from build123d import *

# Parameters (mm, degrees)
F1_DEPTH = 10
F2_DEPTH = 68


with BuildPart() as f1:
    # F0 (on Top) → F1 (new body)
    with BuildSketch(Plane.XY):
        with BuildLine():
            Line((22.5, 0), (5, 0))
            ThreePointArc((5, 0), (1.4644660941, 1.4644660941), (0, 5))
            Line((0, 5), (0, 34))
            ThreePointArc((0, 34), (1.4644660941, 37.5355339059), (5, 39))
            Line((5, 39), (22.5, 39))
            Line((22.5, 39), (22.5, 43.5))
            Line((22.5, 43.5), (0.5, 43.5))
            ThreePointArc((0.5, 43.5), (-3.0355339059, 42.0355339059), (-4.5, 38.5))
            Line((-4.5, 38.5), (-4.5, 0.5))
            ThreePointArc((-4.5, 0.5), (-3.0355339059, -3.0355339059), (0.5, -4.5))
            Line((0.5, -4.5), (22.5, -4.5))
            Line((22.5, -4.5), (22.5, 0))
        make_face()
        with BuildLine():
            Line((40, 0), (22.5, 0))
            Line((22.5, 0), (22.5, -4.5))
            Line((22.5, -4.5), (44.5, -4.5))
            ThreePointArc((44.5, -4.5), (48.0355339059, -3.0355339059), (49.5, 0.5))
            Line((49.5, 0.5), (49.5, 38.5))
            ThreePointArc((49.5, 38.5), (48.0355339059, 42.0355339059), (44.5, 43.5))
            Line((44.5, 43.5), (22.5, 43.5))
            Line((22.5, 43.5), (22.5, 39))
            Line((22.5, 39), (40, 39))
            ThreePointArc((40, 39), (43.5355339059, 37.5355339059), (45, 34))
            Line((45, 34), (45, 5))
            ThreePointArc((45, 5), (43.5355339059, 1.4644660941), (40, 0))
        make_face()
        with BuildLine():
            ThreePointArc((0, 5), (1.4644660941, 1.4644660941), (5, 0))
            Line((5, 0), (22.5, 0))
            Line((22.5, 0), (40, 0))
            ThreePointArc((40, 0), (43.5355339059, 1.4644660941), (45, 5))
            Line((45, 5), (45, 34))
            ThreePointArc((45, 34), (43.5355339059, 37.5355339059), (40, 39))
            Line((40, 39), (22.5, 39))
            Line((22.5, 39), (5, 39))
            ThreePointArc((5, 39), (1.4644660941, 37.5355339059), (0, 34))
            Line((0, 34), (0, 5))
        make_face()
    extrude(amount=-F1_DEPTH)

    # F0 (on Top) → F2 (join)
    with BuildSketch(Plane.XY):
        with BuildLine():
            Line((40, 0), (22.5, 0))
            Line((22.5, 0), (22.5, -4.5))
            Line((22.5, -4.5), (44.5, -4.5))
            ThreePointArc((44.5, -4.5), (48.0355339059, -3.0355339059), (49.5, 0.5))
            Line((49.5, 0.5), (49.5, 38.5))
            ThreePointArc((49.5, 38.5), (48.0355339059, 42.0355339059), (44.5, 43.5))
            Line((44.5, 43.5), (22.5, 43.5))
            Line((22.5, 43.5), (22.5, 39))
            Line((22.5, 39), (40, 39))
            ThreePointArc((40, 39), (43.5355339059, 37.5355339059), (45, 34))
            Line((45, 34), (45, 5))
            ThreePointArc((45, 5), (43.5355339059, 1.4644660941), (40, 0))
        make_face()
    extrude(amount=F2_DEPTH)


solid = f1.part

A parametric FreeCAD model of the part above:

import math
import FreeCAD as App
import Part
import Sketcher

V = App.Vector

doc = App.newDocument("Part")
body = doc.addObject("PartDesign::Body", "Body")

# Sketch on XY plane
sketch1 = body.newObject("Sketcher::SketchObject", "Sketch")
sketch1.AttachmentSupport = (doc.getObject("XY_Plane"), [""])
sketch1.MapMode = "FlatFace"
sketch1.addGeometry(Part.ArcOfCircle(Part.Circle(V(0.5, 38.5, 0), V(0, 0, 1), 5), math.radians(90), math.radians(180)), False)
sketch1.addGeometry(Part.LineSegment(V(-4.5, 38.5, 0), V(-4.5, 0.5, 0)), False)
sketch1.addGeometry(Part.ArcOfCircle(Part.Circle(V(0.5, 0.5, 0), V(0, 0, 1), 5), math.radians(180), math.radians(270)), False)
sketch1.addGeometry(Part.LineSegment(V(0.5, -4.5, 0), V(44.5, -4.5, 0)), False)
sketch1.addGeometry(Part.ArcOfCircle(Part.Circle(V(44.5, 0.5, 0), V(0, 0, 1), 5), math.radians(-90), math.radians(0)), False)
sketch1.addGeometry(Part.LineSegment(V(49.5, 0.5, 0), V(49.5, 38.5, 0)), False)
sketch1.addGeometry(Part.ArcOfCircle(Part.Circle(V(44.5, 38.5, 0), V(0, 0, 1), 5), math.radians(0), math.radians(90)), False)
sketch1.addGeometry(Part.LineSegment(V(44.5, 43.5, 0), V(0.5, 43.5, 0)), False)
sketch1.addConstraint(Sketcher.Constraint("Tangent", 0, 2, 1, 1))
sketch1.addConstraint(Sketcher.Constraint("Tangent", 1, 2, 2, 1))
sketch1.addConstraint(Sketcher.Constraint("Tangent", 2, 2, 3, 1))
sketch1.addConstraint(Sketcher.Constraint("Tangent", 3, 2, 4, 1))
sketch1.addConstraint(Sketcher.Constraint("Tangent", 4, 2, 5, 1))
sketch1.addConstraint(Sketcher.Constraint("Tangent", 5, 2, 6, 1))
sketch1.addConstraint(Sketcher.Constraint("Tangent", 6, 2, 7, 1))
sketch1.addConstraint(Sketcher.Constraint("Tangent", 7, 2, 0, 1))
sketch1.addConstraint(Sketcher.Constraint("Vertical", 1))
sketch1.addConstraint(Sketcher.Constraint("Horizontal", 3))
sketch1.addConstraint(Sketcher.Constraint("Vertical", 5))
sketch1.addConstraint(Sketcher.Constraint("Horizontal", 7))
sketch1.addConstraint(Sketcher.Constraint("Equal", 0, 2))
sketch1.addConstraint(Sketcher.Constraint("Equal", 2, 4))
sketch1.addConstraint(Sketcher.Constraint("Equal", 4, 6))
sketch1.addConstraint(Sketcher.Constraint("Radius", 0, 5.0))
sketch1.addConstraint(Sketcher.Constraint("DistanceX", 3, 1, 3, 2, 44.0))
sketch1.addConstraint(Sketcher.Constraint("DistanceY", 1, 2, 1, 1, 38.0))
sketch1.addConstraint(Sketcher.Constraint("DistanceX", -1, 1, 0, 3, 0.5))
sketch1.addConstraint(Sketcher.Constraint("DistanceY", -1, 1, 0, 3, 38.5))
pad1 = body.newObject("PartDesign::Pad", "Pad")
pad1.Profile = sketch1
pad1.Length = 10
pad1.Reversed = True

# Sketch on XY plane
sketch2 = body.newObject("Sketcher::SketchObject", "Sketch001")
sketch2.AttachmentSupport = (doc.getObject("XY_Plane"), [""])
sketch2.MapMode = "FlatFace"
sketch2.addGeometry(Part.LineSegment(V(40, 0, 0), V(22.5, 0, 0)), False)
sketch2.addGeometry(Part.LineSegment(V(22.5, 0, 0), V(22.5, -4.5, 0)), False)
sketch2.addGeometry(Part.LineSegment(V(22.5, -4.5, 0), V(44.5, -4.5, 0)), False)
sketch2.addGeometry(Part.ArcOfCircle(Part.Circle(V(44.5, 0.5, 0), V(0, 0, 1), 5), math.radians(-90), math.radians(0)), False)
sketch2.addGeometry(Part.LineSegment(V(49.5, 0.5, 0), V(49.5, 38.5, 0)), False)
sketch2.addGeometry(Part.ArcOfCircle(Part.Circle(V(44.5, 38.5, 0), V(0, 0, 1), 5), math.radians(0), math.radians(90)), False)
sketch2.addGeometry(Part.LineSegment(V(44.5, 43.5, 0), V(22.5, 43.5, 0)), False)
sketch2.addGeometry(Part.LineSegment(V(22.5, 43.5, 0), V(22.5, 39, 0)), False)
sketch2.addGeometry(Part.LineSegment(V(22.5, 39, 0), V(40, 39, 0)), False)
sketch2.addGeometry(Part.ArcOfCircle(Part.Circle(V(40, 34, 0), V(0, 0, 1), 5), math.radians(0), math.radians(90)), False)
sketch2.addGeometry(Part.LineSegment(V(45, 34, 0), V(45, 5, 0)), False)
sketch2.addGeometry(Part.ArcOfCircle(Part.Circle(V(40, 5, 0), V(0, 0, 1), 5), math.radians(-90), math.radians(0)), False)
sketch2.addConstraint(Sketcher.Constraint("Coincident", 0, 2, 1, 1))
sketch2.addConstraint(Sketcher.Constraint("Coincident", 1, 2, 2, 1))
sketch2.addConstraint(Sketcher.Constraint("Tangent", 2, 2, 3, 1))
sketch2.addConstraint(Sketcher.Constraint("Tangent", 3, 2, 4, 1))
sketch2.addConstraint(Sketcher.Constraint("Tangent", 4, 2, 5, 1))
sketch2.addConstraint(Sketcher.Constraint("Tangent", 5, 2, 6, 1))
sketch2.addConstraint(Sketcher.Constraint("Coincident", 6, 2, 7, 1))
sketch2.addConstraint(Sketcher.Constraint("Coincident", 7, 2, 8, 1))
sketch2.addConstraint(Sketcher.Constraint("Tangent", 8, 2, 9, 2))
sketch2.addConstraint(Sketcher.Constraint("Tangent", 9, 1, 10, 1))
sketch2.addConstraint(Sketcher.Constraint("Tangent", 10, 2, 11, 2))
sketch2.addConstraint(Sketcher.Constraint("Tangent", 11, 1, 0, 1))
sketch2.addConstraint(Sketcher.Constraint("Horizontal", 0))
sketch2.addConstraint(Sketcher.Constraint("Vertical", 1))
sketch2.addConstraint(Sketcher.Constraint("Horizontal", 2))
sketch2.addConstraint(Sketcher.Constraint("Vertical", 4))
sketch2.addConstraint(Sketcher.Constraint("Horizontal", 6))
sketch2.addConstraint(Sketcher.Constraint("Vertical", 7))
sketch2.addConstraint(Sketcher.Constraint("Horizontal", 8))
sketch2.addConstraint(Sketcher.Constraint("Vertical", 10))
sketch2.addConstraint(Sketcher.Constraint("Equal", 3, 5))
sketch2.addConstraint(Sketcher.Constraint("Equal", 5, 9))
sketch2.addConstraint(Sketcher.Constraint("Equal", 9, 11))
sketch2.addConstraint(Sketcher.Constraint("PointOnObject", 0, 2, -1))
sketch2.addConstraint(Sketcher.Constraint("Vertical", 1, 2, 6, 2))
sketch2.addConstraint(Sketcher.Constraint("Equal", 1, 7))
sketch2.addConstraint(Sketcher.Constraint("Radius", 3, 5.0))
sketch2.addConstraint(Sketcher.Constraint("DistanceX", 2, 1, 2, 2, 22.0))
sketch2.addConstraint(Sketcher.Constraint("DistanceY", 4, 1, 4, 2, 38.0))
sketch2.addConstraint(Sketcher.Constraint("DistanceY", 10, 2, 10, 1, 29.0))
sketch2.addConstraint(Sketcher.Constraint("DistanceX", 0, 2, 0, 1, 17.5))
sketch2.addConstraint(Sketcher.Constraint("DistanceX", -1, 1, 9, 3, 40.0))
pad2 = body.newObject("PartDesign::Pad", "Pad001")
pad2.Profile = sketch2
pad2.Length = 68

doc.recompute()
